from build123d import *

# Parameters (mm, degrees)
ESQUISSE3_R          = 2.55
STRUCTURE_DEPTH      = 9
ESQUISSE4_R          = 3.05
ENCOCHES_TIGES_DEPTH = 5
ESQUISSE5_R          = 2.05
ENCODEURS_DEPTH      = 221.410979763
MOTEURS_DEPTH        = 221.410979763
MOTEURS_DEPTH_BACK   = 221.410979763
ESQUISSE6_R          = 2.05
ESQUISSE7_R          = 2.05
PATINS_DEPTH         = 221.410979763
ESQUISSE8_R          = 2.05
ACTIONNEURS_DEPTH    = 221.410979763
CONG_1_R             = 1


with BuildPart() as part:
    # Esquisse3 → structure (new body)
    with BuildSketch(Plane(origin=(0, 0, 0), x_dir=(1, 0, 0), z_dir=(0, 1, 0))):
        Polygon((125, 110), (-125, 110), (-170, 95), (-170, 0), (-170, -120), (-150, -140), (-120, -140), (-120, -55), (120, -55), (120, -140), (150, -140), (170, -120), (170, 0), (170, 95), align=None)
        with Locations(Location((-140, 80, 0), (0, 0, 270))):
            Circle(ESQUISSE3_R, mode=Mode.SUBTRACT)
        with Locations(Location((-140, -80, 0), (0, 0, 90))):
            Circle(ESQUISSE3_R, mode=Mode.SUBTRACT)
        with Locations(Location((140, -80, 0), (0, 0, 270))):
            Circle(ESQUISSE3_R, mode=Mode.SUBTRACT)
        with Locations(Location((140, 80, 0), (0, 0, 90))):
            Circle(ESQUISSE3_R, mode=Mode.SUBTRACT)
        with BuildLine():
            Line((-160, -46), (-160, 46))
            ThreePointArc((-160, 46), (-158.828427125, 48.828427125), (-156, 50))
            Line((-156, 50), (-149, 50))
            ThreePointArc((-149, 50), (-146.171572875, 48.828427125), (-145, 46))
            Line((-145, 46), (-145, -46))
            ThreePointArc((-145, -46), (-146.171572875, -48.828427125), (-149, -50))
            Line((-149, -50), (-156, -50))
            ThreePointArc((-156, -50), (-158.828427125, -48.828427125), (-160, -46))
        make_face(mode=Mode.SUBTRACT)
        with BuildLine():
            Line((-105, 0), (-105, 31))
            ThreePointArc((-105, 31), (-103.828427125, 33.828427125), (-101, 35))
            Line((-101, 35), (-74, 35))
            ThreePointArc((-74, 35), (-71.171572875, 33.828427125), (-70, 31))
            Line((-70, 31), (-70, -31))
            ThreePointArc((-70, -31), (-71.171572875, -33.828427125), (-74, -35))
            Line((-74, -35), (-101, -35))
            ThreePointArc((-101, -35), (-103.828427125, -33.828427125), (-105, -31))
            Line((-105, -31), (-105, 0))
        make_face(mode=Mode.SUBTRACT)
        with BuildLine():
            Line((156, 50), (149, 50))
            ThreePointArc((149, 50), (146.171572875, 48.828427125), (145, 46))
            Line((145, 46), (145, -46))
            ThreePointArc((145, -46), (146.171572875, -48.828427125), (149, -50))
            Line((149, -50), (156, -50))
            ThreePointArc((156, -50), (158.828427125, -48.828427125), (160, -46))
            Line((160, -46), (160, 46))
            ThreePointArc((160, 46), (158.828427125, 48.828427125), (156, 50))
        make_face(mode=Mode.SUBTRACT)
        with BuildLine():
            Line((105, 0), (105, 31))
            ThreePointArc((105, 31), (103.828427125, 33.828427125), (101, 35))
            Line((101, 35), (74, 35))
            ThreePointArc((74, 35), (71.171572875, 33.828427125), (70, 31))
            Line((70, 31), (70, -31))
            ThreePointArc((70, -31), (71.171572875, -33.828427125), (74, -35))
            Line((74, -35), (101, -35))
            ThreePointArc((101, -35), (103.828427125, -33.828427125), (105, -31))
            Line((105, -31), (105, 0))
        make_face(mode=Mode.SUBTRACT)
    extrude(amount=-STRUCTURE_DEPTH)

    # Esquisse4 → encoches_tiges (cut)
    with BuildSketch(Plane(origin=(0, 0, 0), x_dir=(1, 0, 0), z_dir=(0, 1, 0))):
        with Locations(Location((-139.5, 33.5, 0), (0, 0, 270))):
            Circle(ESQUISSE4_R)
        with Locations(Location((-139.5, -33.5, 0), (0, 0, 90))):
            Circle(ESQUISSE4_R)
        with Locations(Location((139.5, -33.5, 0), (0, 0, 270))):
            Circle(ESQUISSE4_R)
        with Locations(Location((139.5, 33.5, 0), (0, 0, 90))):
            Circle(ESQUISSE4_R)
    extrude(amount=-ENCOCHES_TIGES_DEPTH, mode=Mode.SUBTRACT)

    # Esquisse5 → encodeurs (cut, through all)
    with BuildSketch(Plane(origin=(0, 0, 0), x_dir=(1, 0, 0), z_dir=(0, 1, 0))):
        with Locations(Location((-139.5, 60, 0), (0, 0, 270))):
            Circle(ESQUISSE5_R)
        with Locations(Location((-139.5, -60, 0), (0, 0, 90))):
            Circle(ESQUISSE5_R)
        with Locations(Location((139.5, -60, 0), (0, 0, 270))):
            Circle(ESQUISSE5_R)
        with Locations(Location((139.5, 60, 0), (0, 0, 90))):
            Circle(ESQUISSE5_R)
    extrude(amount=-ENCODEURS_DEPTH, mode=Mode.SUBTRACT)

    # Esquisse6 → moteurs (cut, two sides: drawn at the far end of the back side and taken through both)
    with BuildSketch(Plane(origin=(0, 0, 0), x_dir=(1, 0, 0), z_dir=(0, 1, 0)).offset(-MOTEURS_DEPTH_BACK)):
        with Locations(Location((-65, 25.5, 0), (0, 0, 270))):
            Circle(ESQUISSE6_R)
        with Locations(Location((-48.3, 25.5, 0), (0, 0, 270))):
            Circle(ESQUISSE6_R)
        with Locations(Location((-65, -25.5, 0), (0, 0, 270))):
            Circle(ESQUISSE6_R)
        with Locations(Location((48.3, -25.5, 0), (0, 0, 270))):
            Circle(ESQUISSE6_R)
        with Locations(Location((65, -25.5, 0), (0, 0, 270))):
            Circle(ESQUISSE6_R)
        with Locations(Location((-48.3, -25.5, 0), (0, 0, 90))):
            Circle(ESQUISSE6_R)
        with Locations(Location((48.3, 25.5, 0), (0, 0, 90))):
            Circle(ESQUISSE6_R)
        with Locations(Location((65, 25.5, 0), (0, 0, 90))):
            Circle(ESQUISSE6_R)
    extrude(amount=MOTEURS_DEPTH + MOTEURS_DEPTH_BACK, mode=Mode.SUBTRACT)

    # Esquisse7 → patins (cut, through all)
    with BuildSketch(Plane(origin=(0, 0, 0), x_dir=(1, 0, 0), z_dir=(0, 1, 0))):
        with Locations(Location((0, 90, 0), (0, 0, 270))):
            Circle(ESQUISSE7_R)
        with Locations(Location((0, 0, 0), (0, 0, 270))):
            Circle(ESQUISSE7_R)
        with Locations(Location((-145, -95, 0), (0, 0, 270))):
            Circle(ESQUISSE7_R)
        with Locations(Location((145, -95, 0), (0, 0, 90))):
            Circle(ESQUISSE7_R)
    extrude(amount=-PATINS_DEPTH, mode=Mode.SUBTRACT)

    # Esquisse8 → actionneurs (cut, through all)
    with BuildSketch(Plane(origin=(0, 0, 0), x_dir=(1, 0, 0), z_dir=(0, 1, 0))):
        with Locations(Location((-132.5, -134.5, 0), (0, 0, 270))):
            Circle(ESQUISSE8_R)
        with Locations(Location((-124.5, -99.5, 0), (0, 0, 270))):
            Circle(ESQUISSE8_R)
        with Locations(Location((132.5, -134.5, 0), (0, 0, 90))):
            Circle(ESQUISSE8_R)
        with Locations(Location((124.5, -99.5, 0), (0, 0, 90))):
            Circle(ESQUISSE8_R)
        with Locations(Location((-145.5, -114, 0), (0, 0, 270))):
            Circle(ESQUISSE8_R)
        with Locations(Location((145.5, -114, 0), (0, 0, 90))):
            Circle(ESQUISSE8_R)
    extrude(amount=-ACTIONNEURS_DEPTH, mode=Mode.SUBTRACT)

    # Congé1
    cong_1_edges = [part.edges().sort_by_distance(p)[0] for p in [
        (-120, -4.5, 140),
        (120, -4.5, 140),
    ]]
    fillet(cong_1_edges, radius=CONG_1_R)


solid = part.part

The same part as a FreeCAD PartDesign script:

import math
import FreeCAD as App
import Part
import Sketcher

V = App.Vector


def edges_at(feature, points):
    """Names of the edges that pass closest to the given points."""
    edges = feature.Shape.Edges
    near = lambda p: min(range(len(edges)), key=lambda i: edges[i].distToShape(Part.Vertex(*p))[0])
    return sorted({f"Edge{near(p) + 1}" for p in points})

doc = App.newDocument("Part")
body = doc.addObject("PartDesign::Body", "Body")

# Sketch on XZ plane
sketch1 = body.newObject("Sketcher::SketchObject", "Sketch")
sketch1.AttachmentSupport = (doc.getObject("XZ_Plane"), [""])
sketch1.MapMode = "FlatFace"
sketch1.addGeometry([
    Part.LineSegment(V(125, -110, 0), V(-125, -110, 0)),  # 0
    Part.LineSegment(V(-125, -110, 0), V(-170, -95, 0)),  # 1
    Part.LineSegment(V(-170, -95, 0), V(-170, 120, 0)),  # 2
    Part.LineSegment(V(-170, 120, 0), V(-150, 140, 0)),  # 3
    Part.LineSegment(V(-150, 140, 0), V(-120, 140, 0)),  # 4
    Part.LineSegment(V(-120, 140, 0), V(-120, 55, 0)),  # 5
    Part.LineSegment(V(-120, 55, 0), V(120, 55, 0)),  # 6
    Part.LineSegment(V(120, 55, 0), V(120, 140, 0)),  # 7
    Part.LineSegment(V(120, 140, 0), V(150, 140, 0)),  # 8
    Part.LineSegment(V(150, 140, 0), V(170, 120, 0)),  # 9
    Part.LineSegment(V(170, 120, 0), V(170, -95, 0)),  # 10
    Part.LineSegment(V(170, -95, 0), V(125, -110, 0)),  # 11
    Part.Circle(V(-140, 80, 0), V(0, 0, 1), 2.55),  # 12
    Part.ArcOfCircle(Part.Circle(V(-156, 46, 0), V(0, 0, 1), 4), math.radians(90), math.radians(180)),  # 13
    Part.LineSegment(V(-160, 46, 0), V(-160, -46, 0)),  # 14
    Part.ArcOfCircle(Part.Circle(V(-156, -46, 0), V(0, 0, 1), 4), math.radians(180), math.radians(270)),  # 15
    Part.LineSegment(V(-156, -50, 0), V(-149, -50, 0)),  # 16
    Part.ArcOfCircle(Part.Circle(V(-149, -46, 0), V(0, 0, 1), 4), math.radians(-90), math.radians(0)),  # 17
    Part.LineSegment(V(-145, -46, 0), V(-145, 46, 0)),  # 18
    Part.ArcOfCircle(Part.Circle(V(-149, 46, 0), V(0, 0, 1), 4), math.radians(0), math.radians(90)),  # 19
    Part.LineSegment(V(-149, 50, 0), V(-156, 50, 0)),  # 20
    Part.LineSegment(V(-105, 31, 0), V(-105, -31, 0)),  # 21
    Part.ArcOfCircle(Part.Circle(V(-101, -31, 0), V(0, 0, 1), 4), math.radians(180), math.radians(270)),  # 22
    Part.LineSegment(V(-101, -35, 0), V(-74, -35, 0)),  # 23
    Part.ArcOfCircle(Part.Circle(V(-74, -31, 0), V(0, 0, 1), 4), math.radians(-90), math.radians(0)),  # 24
    Part.LineSegment(V(-70, -31, 0), V(-70, 31, 0)),  # 25
    Part.ArcOfCircle(Part.Circle(V(-74, 31, 0), V(0, 0, 1), 4), math.radians(0), math.radians(90)),  # 26
    Part.LineSegment(V(-74, 35, 0), V(-101, 35, 0)),  # 27
    Part.ArcOfCircle(Part.Circle(V(-101, 31, 0), V(0, 0, 1), 4), math.radians(90), math.radians(180)),  # 28
    Part.Circle(V(140, 80, 0), V(0, 0, 1), 2.55),  # 29
    Part.ArcOfCircle(Part.Circle(V(101, -31, 0), V(0, 0, 1), 4), math.radians(-90), math.radians(0)),  # 30
    Part.LineSegment(V(105, -31, 0), V(105, 31, 0)),  # 31
    Part.ArcOfCircle(Part.Circle(V(101, 31, 0), V(0, 0, 1), 4), math.radians(0), math.radians(90)),  # 32
    Part.LineSegment(V(101, 35, 0), V(74, 35, 0)),  # 33
    Part.ArcOfCircle(Part.Circle(V(74, 31, 0), V(0, 0, 1), 4), math.radians(90), math.radians(180)),  # 34
    Part.LineSegment(V(70, 31, 0), V(70, -31, 0)),  # 35
    Part.ArcOfCircle(Part.Circle(V(74, -31, 0), V(0, 0, 1), 4), math.radians(180), math.radians(270)),  # 36
    Part.LineSegment(V(74, -35, 0), V(101, -35, 0)),  # 37
    Part.LineSegment(V(149, -50, 0), V(156, -50, 0)),  # 38
    Part.ArcOfCircle(Part.Circle(V(156, -46, 0), V(0, 0, 1), 4), math.radians(-90), math.radians(0)),  # 39
    Part.LineSegment(V(160, -46, 0), V(160, 46, 0)),  # 40
    Part.ArcOfCircle(Part.Circle(V(156, 46, 0), V(0, 0, 1), 4), math.radians(0), math.radians(90)),  # 41
    Part.LineSegment(V(156, 50, 0), V(149, 50, 0)),  # 42
    Part.ArcOfCircle(Part.Circle(V(149, 46, 0), V(0, 0, 1), 4), math.radians(90), math.radians(180)),  # 43
    Part.LineSegment(V(145, 46, 0), V(145, -46, 0)),  # 44
    Part.ArcOfCircle(Part.Circle(V(149, -46, 0), V(0, 0, 1), 4), math.radians(180), math.radians(270)),  # 45
    Part.Circle(V(-140, -80, 0), V(0, 0, 1), 2.55),  # 46
    Part.Circle(V(140, -80, 0), V(0, 0, 1), 2.55),  # 47
], False)
sketch1.addConstraint([
    Sketcher.Constraint("Coincident", 0, 2, 1, 1),
    Sketcher.Constraint("Coincident", 1, 2, 2, 1),
    Sketcher.Constraint("Coincident", 2, 2, 3, 1),
    Sketcher.Constraint("Coincident", 3, 2, 4, 1),
    Sketcher.Constraint("Coincident", 4, 2, 5, 1),
    Sketcher.Constraint("Coincident", 5, 2, 6, 1),
    Sketcher.Constraint("Coincident", 6, 2, 7, 1),
    Sketcher.Constraint("Coincident", 7, 2, 8, 1),
    Sketcher.Constraint("Coincident", 8, 2, 9, 1),
    Sketcher.Constraint("Coincident", 9, 2, 10, 1),
    Sketcher.Constraint("Coincident", 10, 2, 11, 1),
    Sketcher.Constraint("Coincident", 11, 2, 0, 1),
    Sketcher.Constraint("Tangent", 13, 2, 14, 1),
    Sketcher.Constraint("Tangent", 14, 2, 15, 1),
    Sketcher.Constraint("Tangent", 15, 2, 16, 1),
    Sketcher.Constraint("Tangent", 16, 2, 17, 1),
    Sketcher.Constraint("Tangent", 17, 2, 18, 1),
    Sketcher.Constraint("Tangent", 18, 2, 19, 1),
    Sketcher.Constraint("Tangent", 19, 2, 20, 1),
    Sketcher.Constraint("Tangent", 20, 2, 13, 1),
    Sketcher.Constraint("Tangent", 21, 2, 22, 1),
    Sketcher.Constraint("Tangent", 22, 2, 23, 1),
    Sketcher.Constraint("Tangent", 23, 2, 24, 1),
    Sketcher.Constraint("Tangent", 24, 2, 25, 1),
    Sketcher.Constraint("Tangent", 25, 2, 26, 1),
    Sketcher.Constraint("Tangent", 26, 2, 27, 1),
    Sketcher.Constraint("Tangent", 27, 2, 28, 1),
    Sketcher.Constraint("Tangent", 28, 2, 21, 1),
    Sketcher.Constraint("Tangent", 30, 2, 31, 1),
    Sketcher.Constraint("Tangent", 31, 2, 32, 1),
    Sketcher.Constraint("Tangent", 32, 2, 33, 1),
    Sketcher.Constraint("Tangent", 33, 2, 34, 1),
    Sketcher.Constraint("Tangent", 34, 2, 35, 1),
    Sketcher.Constraint("Tangent", 35, 2, 36, 1),
    Sketcher.Constraint("Tangent", 36, 2, 37, 1),
    Sketcher.Constraint("Tangent", 37, 2, 30, 1),
    Sketcher.Constraint("Tangent", 38, 2, 39, 1),
    Sketcher.Constraint("Tangent", 39, 2, 40, 1),
    Sketcher.Constraint("Tangent", 40, 2, 41, 1),
    Sketcher.Constraint("Tangent", 41, 2, 42, 1),
    Sketcher.Constraint("Tangent", 42, 2, 43, 1),
    Sketcher.Constraint("Tangent", 43, 2, 44, 1),
    Sketcher.Constraint("Tangent", 44, 2, 45, 1),
    Sketcher.Constraint("Tangent", 45, 2, 38, 1),
    Sketcher.Constraint("Horizontal", 0),
    Sketcher.Constraint("Vertical", 2),
    Sketcher.Constraint("Horizontal", 4),
    Sketcher.Constraint("Vertical", 5),
    Sketcher.Constraint("Horizontal", 6),
    Sketcher.Constraint("Vertical", 7),
    Sketcher.Constraint("Horizontal", 8),
    Sketcher.Constraint("Vertical", 10),
    Sketcher.Constraint("Vertical", 14),
    Sketcher.Constraint("Horizontal", 16),
    Sketcher.Constraint("Vertical", 18),
    Sketcher.Constraint("Horizontal", 20),
    Sketcher.Constraint("Vertical", 21),
    Sketcher.Constraint("Horizontal", 23),
    Sketcher.Constraint("Vertical", 25),
    Sketcher.Constraint("Horizontal", 27),
    Sketcher.Constraint("Vertical", 31),
    Sketcher.Constraint("Horizontal", 33),
    Sketcher.Constraint("Vertical", 35),
    Sketcher.Constraint("Horizontal", 37),
    Sketcher.Constraint("Horizontal", 38),
    Sketcher.Constraint("Vertical", 40),
    Sketcher.Constraint("Horizontal", 42),
    Sketcher.Constraint("Vertical", 44),
    Sketcher.Constraint("Equal", 13, 15),
    Sketcher.Constraint("Equal", 15, 17),
    Sketcher.Constraint("Equal", 17, 19),
    Sketcher.Constraint("Equal", 19, 22),
    Sketcher.Constraint("Equal", 22, 24),
    Sketcher.Constraint("Equal", 24, 26),
    Sketcher.Constraint("Equal", 26, 28),
    Sketcher.Constraint("Equal", 12, 29),
    Sketcher.Constraint("Equal", 28, 30),
    Sketcher.Constraint("Equal", 30, 32),
    Sketcher.Constraint("Equal", 32, 34),
    Sketcher.Constraint("Equal", 34, 36),
    Sketcher.Constraint("Equal", 36, 39),
    Sketcher.Constraint("Equal", 39, 41),
    Sketcher.Constraint("Equal", 41, 43),
    Sketcher.Constraint("Equal", 43, 45),
    Sketcher.Constraint("Equal", 29, 46),
    Sketcher.Constraint("Equal", 46, 47),
    Sketcher.Constraint("Symmetric", 28, 3, 30, 3, -1, 1),
    Sketcher.Constraint("Symmetric", 24, 3, 34, 3, -1, 1),
    Sketcher.Constraint("Symmetric", 13, 3, 39, 3, -1, 1),
    Sketcher.Constraint("Symmetric", 17, 3, 43, 3, -1, 1),
    Sketcher.Constraint("Symmetric", 29, 3, 46, 3, -1, 1),
    Sketcher.Constraint("Symmetric", 12, 3, 47, 3, -1, 1),
    Sketcher.Constraint("Symmetric", 12, 3, 29, 3, -2),
    Sketcher.Constraint("Symmetric", 4, 2, 7, 2, -2),
    Sketcher.Constraint("Symmetric", 2, 2, 9, 2, -2),
    Sketcher.Constraint("Perpendicular", 3, 9),
    Sketcher.Constraint("Horizontal", 24, 3, 30, 3),
    Sketcher.Constraint("Horizontal", 17, 3, 39, 3),
    Sketcher.Constraint("Horizontal", 1, 2, 10, 2),
    Sketcher.Constraint("Equal", 4, 8),
    Sketcher.Constraint("Equal", 1, 11),
    Sketcher.Constraint("Radius", 13, 4.0),
    Sketcher.Constraint("Diameter", 12, 5.1),
    Sketcher.Constraint("DistanceX", 0, 2, 0, 1, 250.0),
    Sketcher.Constraint("DistanceX", 4, 1, 4, 2, 30.0),
    Sketcher.Constraint("DistanceX", 6, 1, 6, 2, 240.0),
    Sketcher.Constraint("DistanceX", 16, 1, 16, 2, 7.0),
    Sketcher.Constraint("DistanceX", 23, 1, 23, 2, 27.0),
    Sketcher.Constraint("DistanceY", 2, 1, 2, 2, 215.0),
    Sketcher.Constraint("DistanceY", 5, 2, 5, 1, 85.0),
    Sketcher.Constraint("DistanceY", 14, 2, 14, 1, 92.0),
    Sketcher.Constraint("DistanceY", 21, 2, 21, 1, 62.0),
    Sketcher.Constraint("DistanceX", 12, 3, -1, 1, 140.0),
    Sketcher.Constraint("DistanceY", -1, 1, 12, 3, 80.0),
    Sketcher.Constraint("DistanceX", 13, 3, -1, 1, 156.0),
    Sketcher.Constraint("DistanceX", 22, 3, -1, 1, 101.0),
    Sketcher.Constraint("DistanceY", 0, 2, -1, 1, 110.0),
    Sketcher.Constraint("DistanceX", 1, 2, -1, 1, 170.0),
    Sketcher.Constraint("DistanceY", 1, 2, -1, 1, 95.0),
])
pad1 = body.newObject("PartDesign::Pad", "Pad")
pad1.Profile = sketch1
pad1.Length = 9

# Sketch on XZ plane
sketch2 = body.newObject("Sketcher::SketchObject", "Sketch001")
sketch2.AttachmentSupport = (doc.getObject("XZ_Plane"), [""])
sketch2.MapMode = "FlatFace"
sketch2.addGeometry([
    Part.Circle(V(-139.5, -33.5, 0), V(0, 0, 1), 3.05),
    Part.Circle(V(-139.5, 33.5, 0), V(0, 0, 1), 3.05),
    Part.Circle(V(139.5, 33.5, 0), V(0, 0, 1), 3.05),
    Part.Circle(V(139.5, -33.5, 0), V(0, 0, 1), 3.05),
], False)
sketch2.addConstraint([
    Sketcher.Constraint("Equal", 0, 1),
    Sketcher.Constraint("Equal", 1, 2),
    Sketcher.Constraint("Equal", 2, 3),
    Sketcher.Constraint("Symmetric", 0, 3, 2, 3, -1, 1),
    Sketcher.Constraint("Symmetric", 1, 3, 3, 3, -1, 1),
    Sketcher.Constraint("Symmetric", 1, 3, 2, 3, -2),
    Sketcher.Constraint("Diameter", 0, 6.1),
    Sketcher.Constraint("DistanceY", 0, 3, 1, 3, 67.0),
    Sketcher.Constraint("DistanceX", 1, 3, 2, 3, 279.0),
])
pocket1 = body.newObject("PartDesign::Pocket", "Pocket")
pocket1.Profile = sketch2
pocket1.Length = 5
pocket1.Reversed = True

# Sketch on XZ plane
sketch3 = body.newObject("Sketcher::SketchObject", "Sketch002")
sketch3.AttachmentSupport = (doc.getObject("XZ_Plane"), [""])
sketch3.MapMode = "FlatFace"
sketch3.addGeometry([
    Part.Circle(V(-139.5, -60, 0), V(0, 0, 1), 2.05),
    Part.Circle(V(-139.5, 60, 0), V(0, 0, 1), 2.05),
    Part.Circle(V(139.5, 60, 0), V(0, 0, 1), 2.05),
    Part.Circle(V(139.5, -60, 0), V(0, 0, 1), 2.05),
], False)
sketch3.addConstraint([
    Sketcher.Constraint("Equal", 0, 1),
    Sketcher.Constraint("Equal", 1, 2),
    Sketcher.Constraint("Equal", 2, 3),
    Sketcher.Constraint("Symmetric", 0, 3, 2, 3, -1, 1),
    Sketcher.Constraint("Symmetric", 1, 3, 3, 3, -1, 1),
    Sketcher.Constraint("Symmetric", 1, 3, 2, 3, -2),
    Sketcher.Constraint("Diameter", 0, 4.1),
    Sketcher.Constraint("DistanceY", 0, 3, -1, 1, 60.0),
    Sketcher.Constraint("DistanceX", 1, 3, 2, 3, 279.0),
])
pocket2 = body.newObject("PartDesign::Pocket", "Pocket001")
pocket2.Profile = sketch3
pocket2.Type = "ThroughAll"
pocket2.Reversed = True

# Sketch on XZ plane
sketch4 = body.newObject("Sketcher::SketchObject", "Sketch003")
sketch4.AttachmentSupport = (doc.getObject("XZ_Plane"), [""])
sketch4.MapMode = "FlatFace"
sketch4.addGeometry([
    Part.Circle(V(-65, -25.5, 0), V(0, 0, 1), 2.05),  # 0
    Part.Circle(V(-48.3, -25.5, 0), V(0, 0, 1), 2.05),  # 1
    Part.Circle(V(-65, 25.5, 0), V(0, 0, 1), 2.05),  # 2
    Part.Circle(V(48.3, 25.5, 0), V(0, 0, 1), 2.05),  # 3
    Part.Circle(V(65, 25.5, 0), V(0, 0, 1), 2.05),  # 4
    Part.Circle(V(-48.3, 25.5, 0), V(0, 0, 1), 2.05),  # 5
    Part.Circle(V(48.3, -25.5, 0), V(0, 0, 1), 2.05),  # 6
    Part.Circle(V(65, -25.5, 0), V(0, 0, 1), 2.05),  # 7
], False)
sketch4.addConstraint([
    Sketcher.Constraint("Equal", 0, 1),
    Sketcher.Constraint("Equal", 1, 2),
    Sketcher.Constraint("Equal", 2, 3),
    Sketcher.Constraint("Equal", 3, 4),
    Sketcher.Constraint("Equal", 4, 5),
    Sketcher.Constraint("Equal", 5, 6),
    Sketcher.Constraint("Equal", 6, 7),
    Sketcher.Constraint("Symmetric", 1, 3, 3, 3, -1, 1),
    Sketcher.Constraint("Symmetric", 0, 3, 4, 3, -1, 1),
    Sketcher.Constraint("Symmetric", 5, 3, 6, 3, -1, 1),
    Sketcher.Constraint("Symmetric", 2, 3, 7, 3, -1, 1),
    Sketcher.Constraint("Symmetric", 2, 3, 4, 3, -2),
    Sketcher.Constraint("Symmetric", 3, 3, 5, 3, -2),
    Sketcher.Constraint("Horizontal", 0, 3, 1, 3),
    Sketcher.Constraint("Diameter", 0, 4.1),
    Sketcher.Constraint("DistanceX", 0, 3, -1, 1, 65.0),
    Sketcher.Constraint("DistanceY", 0, 3, 2, 3, 51.0),
    Sketcher.Constraint("DistanceX", 1, 3, -1, 1, 48.3),
])
pocket3 = body.newObject("PartDesign::Pocket", "Pocket002")
pocket3.Profile = sketch4
pocket3.Type = "ThroughAll"
pocket3.Midplane = True

# Sketch on XZ plane
sketch5 = body.newObject("Sketcher::SketchObject", "Sketch004")
sketch5.AttachmentSupport = (doc.getObject("XZ_Plane"), [""])
sketch5.MapMode = "FlatFace"
sketch5.addGeometry([
    Part.Circle(V(0, -90, 0), V(0, 0, 1), 2.05),
    Part.Circle(V(0, 0, 0), V(0, 0, 1), 2.05),
    Part.Circle(V(-145, 95, 0), V(0, 0, 1), 2.05),
    Part.Circle(V(145, 95, 0), V(0, 0, 1), 2.05),
], False)
sketch5.addConstraint([
    Sketcher.Constraint("Coincident", 1, 3, -1, 1),
    Sketcher.Constraint("Equal", 0, 1),
    Sketcher.Constraint("Equal", 1, 2),
    Sketcher.Constraint("Equal", 2, 3),
    Sketcher.Constraint("Symmetric", 2, 3, 3, 3, -2),
    Sketcher.Constraint("PointOnObject", 0, 3, -2),
    Sketcher.Constraint("Diameter", 0, 4.1),
    Sketcher.Constraint("DistanceY", 0, 3, -1, 1, 90.0),
    Sketcher.Constraint("DistanceX", 2, 3, -1, 1, 145.0),
    Sketcher.Constraint("DistanceY", -1, 1, 2, 3, 95.0),
])
pocket4 = body.newObject("PartDesign::Pocket", "Pocket003")
pocket4.Profile = sketch5
pocket4.Type = "ThroughAll"
pocket4.Reversed = True

# Sketch on XZ plane
sketch6 = body.newObject("Sketcher::SketchObject", "Sketch005")
sketch6.AttachmentSupport = (doc.getObject("XZ_Plane"), [""])
sketch6.MapMode = "FlatFace"
sketch6.addGeometry([
    Part.Circle(V(-132.5, 134.5, 0), V(0, 0, 1), 2.05),  # 0
    Part.Circle(V(-124.5, 99.5, 0), V(0, 0, 1), 2.05),  # 1
    Part.Circle(V(132.5, 134.5, 0), V(0, 0, 1), 2.05),  # 2
    Part.Circle(V(124.5, 99.5, 0), V(0, 0, 1), 2.05),  # 3
    Part.Circle(V(-145.5, 114, 0), V(0, 0, 1), 2.05),  # 4
    Part.Circle(V(145.5, 114, 0), V(0, 0, 1), 2.05),  # 5
], False)
sketch6.addConstraint([
    Sketcher.Constraint("Equal", 0, 1),
    Sketcher.Constraint("Equal", 1, 2),
    Sketcher.Constraint("Equal", 2, 3),
    Sketcher.Constraint("Equal", 3, 4),
    Sketcher.Constraint("Equal", 4, 5),
    Sketcher.Constraint("Symmetric", 0, 3, 2, 3, -2),
    Sketcher.Constraint("Symmetric", 1, 3, 3, 3, -2),
    Sketcher.Constraint("Symmetric", 4, 3, 5, 3, -2),
    Sketcher.Constraint("Diameter", 0, 4.1),
    Sketcher.Constraint("DistanceY", -1, 1, 4, 3, 114.0),
    Sketcher.Constraint("DistanceX", 0, 3, 1, 3, 8.0),
    Sketcher.Constraint("DistanceY", 1, 3, 0, 3, 35.0),
    Sketcher.Constraint("DistanceX", 1, 3, 2, 3, 257.0),
    Sketcher.Constraint("DistanceX", 4, 3, 0, 3, 13.0),
    Sketcher.Constraint("DistanceY", -1, 1, 0, 3, 134.5),
])
pocket5 = body.newObject("PartDesign::Pocket", "Pocket004")
pocket5.Profile = sketch6
pocket5.Type = "ThroughAll"
pocket5.Reversed = True
doc.recompute()

fillet = body.newObject("PartDesign::Fillet", "Fillet")
fillet.Base = (pocket5, edges_at(pocket5, [(-120, -4.5, 140), (120, -4.5, 140)]))
fillet.Radius = 1

doc.recompute()
